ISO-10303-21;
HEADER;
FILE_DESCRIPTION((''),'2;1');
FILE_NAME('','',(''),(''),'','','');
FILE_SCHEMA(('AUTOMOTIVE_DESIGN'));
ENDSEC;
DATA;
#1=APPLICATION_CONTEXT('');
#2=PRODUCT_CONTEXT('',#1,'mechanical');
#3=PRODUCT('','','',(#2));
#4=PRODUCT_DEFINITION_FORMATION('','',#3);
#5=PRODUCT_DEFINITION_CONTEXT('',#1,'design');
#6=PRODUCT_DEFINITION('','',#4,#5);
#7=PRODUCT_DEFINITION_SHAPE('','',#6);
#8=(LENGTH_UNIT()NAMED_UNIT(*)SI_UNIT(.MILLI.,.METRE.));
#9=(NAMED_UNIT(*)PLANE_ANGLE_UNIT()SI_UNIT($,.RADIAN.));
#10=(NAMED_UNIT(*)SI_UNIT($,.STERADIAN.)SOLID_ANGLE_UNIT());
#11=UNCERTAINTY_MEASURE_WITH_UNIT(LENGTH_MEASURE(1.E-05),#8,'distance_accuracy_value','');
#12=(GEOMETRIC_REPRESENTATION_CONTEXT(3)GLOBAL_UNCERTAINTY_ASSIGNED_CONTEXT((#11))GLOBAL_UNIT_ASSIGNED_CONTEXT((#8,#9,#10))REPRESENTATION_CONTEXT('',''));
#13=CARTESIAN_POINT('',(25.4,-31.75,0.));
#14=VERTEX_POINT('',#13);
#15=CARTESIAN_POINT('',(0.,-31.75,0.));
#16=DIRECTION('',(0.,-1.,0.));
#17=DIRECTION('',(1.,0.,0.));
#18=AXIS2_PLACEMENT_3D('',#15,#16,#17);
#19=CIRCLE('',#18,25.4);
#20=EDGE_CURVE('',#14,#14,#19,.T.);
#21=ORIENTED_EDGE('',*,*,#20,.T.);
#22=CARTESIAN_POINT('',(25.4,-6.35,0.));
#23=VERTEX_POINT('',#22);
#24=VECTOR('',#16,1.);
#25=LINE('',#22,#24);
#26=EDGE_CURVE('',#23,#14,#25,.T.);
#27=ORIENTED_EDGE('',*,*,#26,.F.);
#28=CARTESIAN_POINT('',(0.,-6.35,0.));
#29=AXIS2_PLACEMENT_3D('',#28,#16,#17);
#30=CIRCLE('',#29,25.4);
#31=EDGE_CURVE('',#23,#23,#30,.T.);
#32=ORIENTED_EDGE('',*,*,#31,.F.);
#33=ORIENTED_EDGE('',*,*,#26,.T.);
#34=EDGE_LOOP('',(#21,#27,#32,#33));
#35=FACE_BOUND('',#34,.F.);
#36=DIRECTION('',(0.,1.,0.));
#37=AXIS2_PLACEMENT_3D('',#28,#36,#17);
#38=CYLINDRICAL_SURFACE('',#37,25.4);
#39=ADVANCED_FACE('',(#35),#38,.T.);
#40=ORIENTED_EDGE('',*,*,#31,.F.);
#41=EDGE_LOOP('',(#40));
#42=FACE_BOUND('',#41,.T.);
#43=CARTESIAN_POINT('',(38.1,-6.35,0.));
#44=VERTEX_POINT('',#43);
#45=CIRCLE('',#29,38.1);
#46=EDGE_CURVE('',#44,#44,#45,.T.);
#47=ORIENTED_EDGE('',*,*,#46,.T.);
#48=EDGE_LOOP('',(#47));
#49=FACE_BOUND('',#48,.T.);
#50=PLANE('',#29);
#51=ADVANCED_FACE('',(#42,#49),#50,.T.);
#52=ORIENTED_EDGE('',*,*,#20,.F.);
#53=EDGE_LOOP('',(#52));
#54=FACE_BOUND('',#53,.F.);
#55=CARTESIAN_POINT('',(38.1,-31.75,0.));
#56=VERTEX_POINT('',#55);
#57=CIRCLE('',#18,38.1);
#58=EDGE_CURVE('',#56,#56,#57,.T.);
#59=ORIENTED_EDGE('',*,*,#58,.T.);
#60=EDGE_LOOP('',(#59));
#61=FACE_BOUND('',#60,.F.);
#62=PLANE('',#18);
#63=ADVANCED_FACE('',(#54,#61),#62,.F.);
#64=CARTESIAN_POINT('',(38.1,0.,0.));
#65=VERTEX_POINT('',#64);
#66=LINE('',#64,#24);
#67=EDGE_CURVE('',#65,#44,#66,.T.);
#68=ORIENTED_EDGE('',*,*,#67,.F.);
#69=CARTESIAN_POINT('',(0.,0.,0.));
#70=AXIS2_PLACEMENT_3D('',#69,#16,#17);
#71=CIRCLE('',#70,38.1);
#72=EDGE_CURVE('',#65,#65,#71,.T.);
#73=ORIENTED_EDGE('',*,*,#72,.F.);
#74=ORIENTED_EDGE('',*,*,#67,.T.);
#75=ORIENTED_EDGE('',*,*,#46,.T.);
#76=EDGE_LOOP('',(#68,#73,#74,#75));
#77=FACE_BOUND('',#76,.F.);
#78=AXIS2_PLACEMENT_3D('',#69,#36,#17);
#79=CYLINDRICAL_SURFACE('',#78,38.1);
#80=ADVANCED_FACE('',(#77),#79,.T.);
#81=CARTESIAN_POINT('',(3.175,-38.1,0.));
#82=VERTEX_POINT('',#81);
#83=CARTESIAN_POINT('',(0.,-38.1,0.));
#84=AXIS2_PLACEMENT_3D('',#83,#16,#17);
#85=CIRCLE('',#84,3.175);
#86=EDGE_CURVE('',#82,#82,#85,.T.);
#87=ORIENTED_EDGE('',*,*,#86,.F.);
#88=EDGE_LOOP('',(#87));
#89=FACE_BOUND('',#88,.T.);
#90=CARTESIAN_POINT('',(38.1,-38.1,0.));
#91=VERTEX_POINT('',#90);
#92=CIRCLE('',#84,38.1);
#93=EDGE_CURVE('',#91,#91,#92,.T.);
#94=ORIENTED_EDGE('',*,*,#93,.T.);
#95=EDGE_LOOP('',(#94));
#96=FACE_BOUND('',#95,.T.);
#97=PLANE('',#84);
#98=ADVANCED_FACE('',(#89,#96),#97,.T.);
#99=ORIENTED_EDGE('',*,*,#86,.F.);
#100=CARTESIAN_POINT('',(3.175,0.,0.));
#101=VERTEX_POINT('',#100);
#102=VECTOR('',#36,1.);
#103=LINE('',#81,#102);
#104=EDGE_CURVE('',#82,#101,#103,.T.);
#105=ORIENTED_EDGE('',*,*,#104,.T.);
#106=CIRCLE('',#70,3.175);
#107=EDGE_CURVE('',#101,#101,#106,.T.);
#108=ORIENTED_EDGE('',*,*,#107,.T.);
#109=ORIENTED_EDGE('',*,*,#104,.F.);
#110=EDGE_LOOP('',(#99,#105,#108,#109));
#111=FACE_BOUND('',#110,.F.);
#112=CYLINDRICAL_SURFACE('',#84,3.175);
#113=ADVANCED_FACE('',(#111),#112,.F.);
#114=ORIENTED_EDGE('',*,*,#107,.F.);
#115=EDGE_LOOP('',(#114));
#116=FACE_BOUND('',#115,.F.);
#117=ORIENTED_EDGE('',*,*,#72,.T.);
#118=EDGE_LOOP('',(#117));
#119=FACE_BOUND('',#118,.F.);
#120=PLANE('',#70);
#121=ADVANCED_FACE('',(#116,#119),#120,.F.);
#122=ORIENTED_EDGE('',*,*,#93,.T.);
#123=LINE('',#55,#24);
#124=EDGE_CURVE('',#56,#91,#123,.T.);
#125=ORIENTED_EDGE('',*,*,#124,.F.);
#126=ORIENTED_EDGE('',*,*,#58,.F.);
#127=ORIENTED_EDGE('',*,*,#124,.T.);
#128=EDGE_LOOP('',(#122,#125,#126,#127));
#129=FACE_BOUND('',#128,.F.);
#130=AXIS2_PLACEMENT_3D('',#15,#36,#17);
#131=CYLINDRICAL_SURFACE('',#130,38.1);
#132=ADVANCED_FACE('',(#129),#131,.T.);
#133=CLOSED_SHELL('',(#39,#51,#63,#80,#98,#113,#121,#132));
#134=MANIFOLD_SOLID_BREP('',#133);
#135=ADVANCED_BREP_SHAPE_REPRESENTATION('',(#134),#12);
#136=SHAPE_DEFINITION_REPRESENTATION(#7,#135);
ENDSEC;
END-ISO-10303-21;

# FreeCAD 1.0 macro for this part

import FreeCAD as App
import Part
import Sketcher

V = App.Vector
Q = App.Units.Quantity

doc = App.newDocument("Part")
body = doc.addObject("PartDesign::Body", "Body")

sketch1 = body.newObject("Sketcher::SketchObject", "Sketch")
sketch1.AttachmentSupport = (doc.getObject("XZ_Plane"), [""])
sketch1.MapMode = "FlatFace"
sketch1.addGeometry(Part.Circle(V(0, 0, 0), V(0, 0, 1), 38), False)
sketch1.addConstraint(Sketcher.Constraint("Coincident", 0, 3, -1, 1))
sketch1.addConstraint(Sketcher.Constraint("Diameter", 0, Q("3 in")))
pad1 = body.newObject("PartDesign::Pad", "Pad")
pad1.Profile = sketch1
pad1.Length = Q("0.25 in")

sketch2 = body.newObject("Sketcher::SketchObject", "Sketch001")
sketch2.AttachmentSupport = (doc.getObject("XZ_Plane"), [""])
sketch2.MapMode = "FlatFace"
sketch2.AttachmentOffset = App.Placement(V(0, 0, 0.25 * 25.4), App.Rotation())
sketch2.addGeometry(Part.Circle(V(0, 0, 0), V(0, 0, 1), 25), False)
sketch2.addConstraint(Sketcher.Constraint("Coincident", 0, 3, -1, 1))
sketch2.addConstraint(Sketcher.Constraint("Diameter", 0, Q("2 in")))
pad2 = body.newObject("PartDesign::Pad", "Pad001")
pad2.Profile = sketch2
pad2.Length = Q("1 in")

sketch3 = body.newObject("Sketcher::SketchObject", "Sketch002")
sketch3.AttachmentSupport = (doc.getObject("XZ_Plane"), [""])
sketch3.MapMode = "FlatFace"
sketch3.AttachmentOffset = App.Placement(V(0, 0, 1.25 * 25.4), App.Rotation())
sketch3.addGeometry(Part.Circle(V(0, 0, 0), V(0, 0, 1), 38), False)
sketch3.addConstraint(Sketcher.Constraint("Coincident", 0, 3, -1, 1))
sketch3.addConstraint(Sketcher.Constraint("Diameter", 0, Q("3 in")))
pad3 = body.newObject("PartDesign::Pad", "Pad002")
pad3.Profile = sketch3
pad3.Length = Q("0.25 in")

sketch4 = body.newObject("Sketcher::SketchObject", "Sketch003")
sketch4.AttachmentSupport = (doc.getObject("XZ_Plane"), [""])
sketch4.MapMode = "FlatFace"
sketch4.AttachmentOffset = App.Placement(V(0, 0, 1.5 * 25.4), App.Rotation())
sketch4.addGeometry(Part.Circle(V(0, 0, 0), V(0, 0, 1), 3.2), False)
sketch4.addConstraint(Sketcher.Constraint("Coincident", 0, 3, -1, 1))
sketch4.addConstraint(Sketcher.Constraint("Diameter", 0, Q("0.25 in")))
pocket1 = body.newObject("PartDesign::Pocket", "Pocket")
pocket1.Profile = sketch4
pocket1.Type = "ThroughAll"

doc.recompute()
